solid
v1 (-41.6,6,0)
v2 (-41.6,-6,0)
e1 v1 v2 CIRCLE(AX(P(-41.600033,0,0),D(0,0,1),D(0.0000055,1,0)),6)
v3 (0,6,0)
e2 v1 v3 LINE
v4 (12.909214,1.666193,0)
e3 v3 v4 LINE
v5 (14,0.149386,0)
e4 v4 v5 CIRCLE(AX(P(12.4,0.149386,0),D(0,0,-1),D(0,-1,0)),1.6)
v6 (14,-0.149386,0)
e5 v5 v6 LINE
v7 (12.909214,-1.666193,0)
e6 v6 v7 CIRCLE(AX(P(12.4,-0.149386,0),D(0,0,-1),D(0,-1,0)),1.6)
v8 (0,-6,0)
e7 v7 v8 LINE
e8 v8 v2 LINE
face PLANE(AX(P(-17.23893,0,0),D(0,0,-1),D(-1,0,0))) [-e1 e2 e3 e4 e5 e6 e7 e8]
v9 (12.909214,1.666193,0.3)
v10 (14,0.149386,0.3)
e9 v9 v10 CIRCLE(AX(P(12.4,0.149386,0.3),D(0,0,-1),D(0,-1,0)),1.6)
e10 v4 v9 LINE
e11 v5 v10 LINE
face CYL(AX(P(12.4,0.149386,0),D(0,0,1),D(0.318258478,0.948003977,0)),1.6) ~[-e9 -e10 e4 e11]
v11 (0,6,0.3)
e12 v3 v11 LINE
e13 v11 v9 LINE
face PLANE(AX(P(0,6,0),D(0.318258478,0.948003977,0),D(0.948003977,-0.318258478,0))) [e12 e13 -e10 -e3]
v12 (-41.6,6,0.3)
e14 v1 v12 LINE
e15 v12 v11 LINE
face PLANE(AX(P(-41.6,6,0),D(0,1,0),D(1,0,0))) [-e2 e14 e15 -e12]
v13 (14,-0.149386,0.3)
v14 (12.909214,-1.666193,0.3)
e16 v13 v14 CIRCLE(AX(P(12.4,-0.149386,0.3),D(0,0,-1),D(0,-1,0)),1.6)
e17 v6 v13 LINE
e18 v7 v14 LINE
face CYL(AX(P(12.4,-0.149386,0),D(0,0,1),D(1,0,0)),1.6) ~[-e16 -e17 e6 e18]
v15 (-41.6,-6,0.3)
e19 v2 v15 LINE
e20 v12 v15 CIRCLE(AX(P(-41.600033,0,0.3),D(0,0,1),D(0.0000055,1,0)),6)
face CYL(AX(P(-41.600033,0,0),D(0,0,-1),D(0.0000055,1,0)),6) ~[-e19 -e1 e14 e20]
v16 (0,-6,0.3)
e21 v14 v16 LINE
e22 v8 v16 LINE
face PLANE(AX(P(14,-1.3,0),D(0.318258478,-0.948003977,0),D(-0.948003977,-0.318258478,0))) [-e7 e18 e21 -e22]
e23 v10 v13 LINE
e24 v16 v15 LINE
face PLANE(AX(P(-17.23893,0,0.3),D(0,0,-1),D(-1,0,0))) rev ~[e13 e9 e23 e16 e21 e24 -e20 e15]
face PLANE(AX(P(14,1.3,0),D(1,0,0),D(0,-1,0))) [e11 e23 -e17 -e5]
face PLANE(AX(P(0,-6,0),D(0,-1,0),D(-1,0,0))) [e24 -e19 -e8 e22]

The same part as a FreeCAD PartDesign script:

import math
import FreeCAD as App
import Part
import Sketcher

V = App.Vector
Q = App.Units.Quantity


def edges_at(feature, points):
    """Names of the edges that pass closest to the given points."""
    edges = feature.Shape.Edges
    near = lambda p: min(range(len(edges)), key=lambda i: edges[i].distToShape(Part.Vertex(*p))[0])
    return sorted({f"Edge{near(p) + 1}" for p in points})

doc = App.newDocument("Part")
body = doc.addObject("PartDesign::Body", "Body")

# Sketch on XY plane
sketch1 = body.newObject("Sketcher::SketchObject", "Sketch")
sketch1.AttachmentSupport = (doc.getObject("XY_Plane"), [""])
sketch1.MapMode = "FlatFace"
sketch1.addGeometry([
    Part.LineSegment(V(0, 6, 0), V(-41.6, 6, 0)),  # 0
    Part.ArcOfCircle(Part.Circle(V(-41.6, 0, 0), V(0, 0, 1), 6), math.radians(90), math.radians(270)),  # 1
    Part.LineSegment(V(-41.6, -6, 0), V(0, -6, 0)),  # 2
    Part.LineSegment(V(0, -6, 0), V(14, -1.3, 0)),  # 3
    Part.LineSegment(V(14, -1.3, 0), V(14, 1.3, 0)),  # 4
    Part.LineSegment(V(14, 1.3, 0), V(0, 6, 0)),  # 5
], False)
sketch1.addConstraint([
    Sketcher.Constraint("Coincident", 0, 2, 1, 1),
    Sketcher.Constraint("Coincident", 1, 2, 2, 1),
    Sketcher.Constraint("Coincident", 2, 2, 3, 1),
    Sketcher.Constraint("Coincident", 3, 2, 4, 1),
    Sketcher.Constraint("Coincident", 4, 2, 5, 1),
    Sketcher.Constraint("Coincident", 5, 2, 0, 1),
    Sketcher.Constraint("Horizontal", 0),
    Sketcher.Constraint("Horizontal", 2),
    Sketcher.Constraint("Vertical", 4),
    Sketcher.Constraint("Symmetric", 2, 2, 5, 2, -1, 1),
    Sketcher.Constraint("PointOnObject", 2, 2, -2),
    Sketcher.Constraint("Vertical", 0, 2, 1, 2),
    Sketcher.Constraint("Equal", 3, 5),
    Sketcher.Constraint("Radius", 1, Q("6 mm")),
    Sketcher.Constraint("DistanceX", 0, 2, 0, 1, Q("41.6 mm")),
    Sketcher.Constraint("DistanceY", 4, 1, 4, 2, Q("2.6 mm")),
    Sketcher.Constraint("DistanceX", -1, 1, 3, 2, Q("14 mm")),
    Sketcher.Constraint("DistanceX", 1, 3, -1, 1, Q("41.600033 mm")),
])
pad1 = body.newObject("PartDesign::Pad", "Pad")
pad1.Profile = sketch1
pad1.Length = 0.3
doc.recompute()

fillet = body.newObject("PartDesign::Fillet", "Fillet")
fillet.Base = (pad1, edges_at(pad1, [(14, -1.3, 0.15), (14, 1.3, 0.15)]))
fillet.Radius = 1.6

doc.recompute()
